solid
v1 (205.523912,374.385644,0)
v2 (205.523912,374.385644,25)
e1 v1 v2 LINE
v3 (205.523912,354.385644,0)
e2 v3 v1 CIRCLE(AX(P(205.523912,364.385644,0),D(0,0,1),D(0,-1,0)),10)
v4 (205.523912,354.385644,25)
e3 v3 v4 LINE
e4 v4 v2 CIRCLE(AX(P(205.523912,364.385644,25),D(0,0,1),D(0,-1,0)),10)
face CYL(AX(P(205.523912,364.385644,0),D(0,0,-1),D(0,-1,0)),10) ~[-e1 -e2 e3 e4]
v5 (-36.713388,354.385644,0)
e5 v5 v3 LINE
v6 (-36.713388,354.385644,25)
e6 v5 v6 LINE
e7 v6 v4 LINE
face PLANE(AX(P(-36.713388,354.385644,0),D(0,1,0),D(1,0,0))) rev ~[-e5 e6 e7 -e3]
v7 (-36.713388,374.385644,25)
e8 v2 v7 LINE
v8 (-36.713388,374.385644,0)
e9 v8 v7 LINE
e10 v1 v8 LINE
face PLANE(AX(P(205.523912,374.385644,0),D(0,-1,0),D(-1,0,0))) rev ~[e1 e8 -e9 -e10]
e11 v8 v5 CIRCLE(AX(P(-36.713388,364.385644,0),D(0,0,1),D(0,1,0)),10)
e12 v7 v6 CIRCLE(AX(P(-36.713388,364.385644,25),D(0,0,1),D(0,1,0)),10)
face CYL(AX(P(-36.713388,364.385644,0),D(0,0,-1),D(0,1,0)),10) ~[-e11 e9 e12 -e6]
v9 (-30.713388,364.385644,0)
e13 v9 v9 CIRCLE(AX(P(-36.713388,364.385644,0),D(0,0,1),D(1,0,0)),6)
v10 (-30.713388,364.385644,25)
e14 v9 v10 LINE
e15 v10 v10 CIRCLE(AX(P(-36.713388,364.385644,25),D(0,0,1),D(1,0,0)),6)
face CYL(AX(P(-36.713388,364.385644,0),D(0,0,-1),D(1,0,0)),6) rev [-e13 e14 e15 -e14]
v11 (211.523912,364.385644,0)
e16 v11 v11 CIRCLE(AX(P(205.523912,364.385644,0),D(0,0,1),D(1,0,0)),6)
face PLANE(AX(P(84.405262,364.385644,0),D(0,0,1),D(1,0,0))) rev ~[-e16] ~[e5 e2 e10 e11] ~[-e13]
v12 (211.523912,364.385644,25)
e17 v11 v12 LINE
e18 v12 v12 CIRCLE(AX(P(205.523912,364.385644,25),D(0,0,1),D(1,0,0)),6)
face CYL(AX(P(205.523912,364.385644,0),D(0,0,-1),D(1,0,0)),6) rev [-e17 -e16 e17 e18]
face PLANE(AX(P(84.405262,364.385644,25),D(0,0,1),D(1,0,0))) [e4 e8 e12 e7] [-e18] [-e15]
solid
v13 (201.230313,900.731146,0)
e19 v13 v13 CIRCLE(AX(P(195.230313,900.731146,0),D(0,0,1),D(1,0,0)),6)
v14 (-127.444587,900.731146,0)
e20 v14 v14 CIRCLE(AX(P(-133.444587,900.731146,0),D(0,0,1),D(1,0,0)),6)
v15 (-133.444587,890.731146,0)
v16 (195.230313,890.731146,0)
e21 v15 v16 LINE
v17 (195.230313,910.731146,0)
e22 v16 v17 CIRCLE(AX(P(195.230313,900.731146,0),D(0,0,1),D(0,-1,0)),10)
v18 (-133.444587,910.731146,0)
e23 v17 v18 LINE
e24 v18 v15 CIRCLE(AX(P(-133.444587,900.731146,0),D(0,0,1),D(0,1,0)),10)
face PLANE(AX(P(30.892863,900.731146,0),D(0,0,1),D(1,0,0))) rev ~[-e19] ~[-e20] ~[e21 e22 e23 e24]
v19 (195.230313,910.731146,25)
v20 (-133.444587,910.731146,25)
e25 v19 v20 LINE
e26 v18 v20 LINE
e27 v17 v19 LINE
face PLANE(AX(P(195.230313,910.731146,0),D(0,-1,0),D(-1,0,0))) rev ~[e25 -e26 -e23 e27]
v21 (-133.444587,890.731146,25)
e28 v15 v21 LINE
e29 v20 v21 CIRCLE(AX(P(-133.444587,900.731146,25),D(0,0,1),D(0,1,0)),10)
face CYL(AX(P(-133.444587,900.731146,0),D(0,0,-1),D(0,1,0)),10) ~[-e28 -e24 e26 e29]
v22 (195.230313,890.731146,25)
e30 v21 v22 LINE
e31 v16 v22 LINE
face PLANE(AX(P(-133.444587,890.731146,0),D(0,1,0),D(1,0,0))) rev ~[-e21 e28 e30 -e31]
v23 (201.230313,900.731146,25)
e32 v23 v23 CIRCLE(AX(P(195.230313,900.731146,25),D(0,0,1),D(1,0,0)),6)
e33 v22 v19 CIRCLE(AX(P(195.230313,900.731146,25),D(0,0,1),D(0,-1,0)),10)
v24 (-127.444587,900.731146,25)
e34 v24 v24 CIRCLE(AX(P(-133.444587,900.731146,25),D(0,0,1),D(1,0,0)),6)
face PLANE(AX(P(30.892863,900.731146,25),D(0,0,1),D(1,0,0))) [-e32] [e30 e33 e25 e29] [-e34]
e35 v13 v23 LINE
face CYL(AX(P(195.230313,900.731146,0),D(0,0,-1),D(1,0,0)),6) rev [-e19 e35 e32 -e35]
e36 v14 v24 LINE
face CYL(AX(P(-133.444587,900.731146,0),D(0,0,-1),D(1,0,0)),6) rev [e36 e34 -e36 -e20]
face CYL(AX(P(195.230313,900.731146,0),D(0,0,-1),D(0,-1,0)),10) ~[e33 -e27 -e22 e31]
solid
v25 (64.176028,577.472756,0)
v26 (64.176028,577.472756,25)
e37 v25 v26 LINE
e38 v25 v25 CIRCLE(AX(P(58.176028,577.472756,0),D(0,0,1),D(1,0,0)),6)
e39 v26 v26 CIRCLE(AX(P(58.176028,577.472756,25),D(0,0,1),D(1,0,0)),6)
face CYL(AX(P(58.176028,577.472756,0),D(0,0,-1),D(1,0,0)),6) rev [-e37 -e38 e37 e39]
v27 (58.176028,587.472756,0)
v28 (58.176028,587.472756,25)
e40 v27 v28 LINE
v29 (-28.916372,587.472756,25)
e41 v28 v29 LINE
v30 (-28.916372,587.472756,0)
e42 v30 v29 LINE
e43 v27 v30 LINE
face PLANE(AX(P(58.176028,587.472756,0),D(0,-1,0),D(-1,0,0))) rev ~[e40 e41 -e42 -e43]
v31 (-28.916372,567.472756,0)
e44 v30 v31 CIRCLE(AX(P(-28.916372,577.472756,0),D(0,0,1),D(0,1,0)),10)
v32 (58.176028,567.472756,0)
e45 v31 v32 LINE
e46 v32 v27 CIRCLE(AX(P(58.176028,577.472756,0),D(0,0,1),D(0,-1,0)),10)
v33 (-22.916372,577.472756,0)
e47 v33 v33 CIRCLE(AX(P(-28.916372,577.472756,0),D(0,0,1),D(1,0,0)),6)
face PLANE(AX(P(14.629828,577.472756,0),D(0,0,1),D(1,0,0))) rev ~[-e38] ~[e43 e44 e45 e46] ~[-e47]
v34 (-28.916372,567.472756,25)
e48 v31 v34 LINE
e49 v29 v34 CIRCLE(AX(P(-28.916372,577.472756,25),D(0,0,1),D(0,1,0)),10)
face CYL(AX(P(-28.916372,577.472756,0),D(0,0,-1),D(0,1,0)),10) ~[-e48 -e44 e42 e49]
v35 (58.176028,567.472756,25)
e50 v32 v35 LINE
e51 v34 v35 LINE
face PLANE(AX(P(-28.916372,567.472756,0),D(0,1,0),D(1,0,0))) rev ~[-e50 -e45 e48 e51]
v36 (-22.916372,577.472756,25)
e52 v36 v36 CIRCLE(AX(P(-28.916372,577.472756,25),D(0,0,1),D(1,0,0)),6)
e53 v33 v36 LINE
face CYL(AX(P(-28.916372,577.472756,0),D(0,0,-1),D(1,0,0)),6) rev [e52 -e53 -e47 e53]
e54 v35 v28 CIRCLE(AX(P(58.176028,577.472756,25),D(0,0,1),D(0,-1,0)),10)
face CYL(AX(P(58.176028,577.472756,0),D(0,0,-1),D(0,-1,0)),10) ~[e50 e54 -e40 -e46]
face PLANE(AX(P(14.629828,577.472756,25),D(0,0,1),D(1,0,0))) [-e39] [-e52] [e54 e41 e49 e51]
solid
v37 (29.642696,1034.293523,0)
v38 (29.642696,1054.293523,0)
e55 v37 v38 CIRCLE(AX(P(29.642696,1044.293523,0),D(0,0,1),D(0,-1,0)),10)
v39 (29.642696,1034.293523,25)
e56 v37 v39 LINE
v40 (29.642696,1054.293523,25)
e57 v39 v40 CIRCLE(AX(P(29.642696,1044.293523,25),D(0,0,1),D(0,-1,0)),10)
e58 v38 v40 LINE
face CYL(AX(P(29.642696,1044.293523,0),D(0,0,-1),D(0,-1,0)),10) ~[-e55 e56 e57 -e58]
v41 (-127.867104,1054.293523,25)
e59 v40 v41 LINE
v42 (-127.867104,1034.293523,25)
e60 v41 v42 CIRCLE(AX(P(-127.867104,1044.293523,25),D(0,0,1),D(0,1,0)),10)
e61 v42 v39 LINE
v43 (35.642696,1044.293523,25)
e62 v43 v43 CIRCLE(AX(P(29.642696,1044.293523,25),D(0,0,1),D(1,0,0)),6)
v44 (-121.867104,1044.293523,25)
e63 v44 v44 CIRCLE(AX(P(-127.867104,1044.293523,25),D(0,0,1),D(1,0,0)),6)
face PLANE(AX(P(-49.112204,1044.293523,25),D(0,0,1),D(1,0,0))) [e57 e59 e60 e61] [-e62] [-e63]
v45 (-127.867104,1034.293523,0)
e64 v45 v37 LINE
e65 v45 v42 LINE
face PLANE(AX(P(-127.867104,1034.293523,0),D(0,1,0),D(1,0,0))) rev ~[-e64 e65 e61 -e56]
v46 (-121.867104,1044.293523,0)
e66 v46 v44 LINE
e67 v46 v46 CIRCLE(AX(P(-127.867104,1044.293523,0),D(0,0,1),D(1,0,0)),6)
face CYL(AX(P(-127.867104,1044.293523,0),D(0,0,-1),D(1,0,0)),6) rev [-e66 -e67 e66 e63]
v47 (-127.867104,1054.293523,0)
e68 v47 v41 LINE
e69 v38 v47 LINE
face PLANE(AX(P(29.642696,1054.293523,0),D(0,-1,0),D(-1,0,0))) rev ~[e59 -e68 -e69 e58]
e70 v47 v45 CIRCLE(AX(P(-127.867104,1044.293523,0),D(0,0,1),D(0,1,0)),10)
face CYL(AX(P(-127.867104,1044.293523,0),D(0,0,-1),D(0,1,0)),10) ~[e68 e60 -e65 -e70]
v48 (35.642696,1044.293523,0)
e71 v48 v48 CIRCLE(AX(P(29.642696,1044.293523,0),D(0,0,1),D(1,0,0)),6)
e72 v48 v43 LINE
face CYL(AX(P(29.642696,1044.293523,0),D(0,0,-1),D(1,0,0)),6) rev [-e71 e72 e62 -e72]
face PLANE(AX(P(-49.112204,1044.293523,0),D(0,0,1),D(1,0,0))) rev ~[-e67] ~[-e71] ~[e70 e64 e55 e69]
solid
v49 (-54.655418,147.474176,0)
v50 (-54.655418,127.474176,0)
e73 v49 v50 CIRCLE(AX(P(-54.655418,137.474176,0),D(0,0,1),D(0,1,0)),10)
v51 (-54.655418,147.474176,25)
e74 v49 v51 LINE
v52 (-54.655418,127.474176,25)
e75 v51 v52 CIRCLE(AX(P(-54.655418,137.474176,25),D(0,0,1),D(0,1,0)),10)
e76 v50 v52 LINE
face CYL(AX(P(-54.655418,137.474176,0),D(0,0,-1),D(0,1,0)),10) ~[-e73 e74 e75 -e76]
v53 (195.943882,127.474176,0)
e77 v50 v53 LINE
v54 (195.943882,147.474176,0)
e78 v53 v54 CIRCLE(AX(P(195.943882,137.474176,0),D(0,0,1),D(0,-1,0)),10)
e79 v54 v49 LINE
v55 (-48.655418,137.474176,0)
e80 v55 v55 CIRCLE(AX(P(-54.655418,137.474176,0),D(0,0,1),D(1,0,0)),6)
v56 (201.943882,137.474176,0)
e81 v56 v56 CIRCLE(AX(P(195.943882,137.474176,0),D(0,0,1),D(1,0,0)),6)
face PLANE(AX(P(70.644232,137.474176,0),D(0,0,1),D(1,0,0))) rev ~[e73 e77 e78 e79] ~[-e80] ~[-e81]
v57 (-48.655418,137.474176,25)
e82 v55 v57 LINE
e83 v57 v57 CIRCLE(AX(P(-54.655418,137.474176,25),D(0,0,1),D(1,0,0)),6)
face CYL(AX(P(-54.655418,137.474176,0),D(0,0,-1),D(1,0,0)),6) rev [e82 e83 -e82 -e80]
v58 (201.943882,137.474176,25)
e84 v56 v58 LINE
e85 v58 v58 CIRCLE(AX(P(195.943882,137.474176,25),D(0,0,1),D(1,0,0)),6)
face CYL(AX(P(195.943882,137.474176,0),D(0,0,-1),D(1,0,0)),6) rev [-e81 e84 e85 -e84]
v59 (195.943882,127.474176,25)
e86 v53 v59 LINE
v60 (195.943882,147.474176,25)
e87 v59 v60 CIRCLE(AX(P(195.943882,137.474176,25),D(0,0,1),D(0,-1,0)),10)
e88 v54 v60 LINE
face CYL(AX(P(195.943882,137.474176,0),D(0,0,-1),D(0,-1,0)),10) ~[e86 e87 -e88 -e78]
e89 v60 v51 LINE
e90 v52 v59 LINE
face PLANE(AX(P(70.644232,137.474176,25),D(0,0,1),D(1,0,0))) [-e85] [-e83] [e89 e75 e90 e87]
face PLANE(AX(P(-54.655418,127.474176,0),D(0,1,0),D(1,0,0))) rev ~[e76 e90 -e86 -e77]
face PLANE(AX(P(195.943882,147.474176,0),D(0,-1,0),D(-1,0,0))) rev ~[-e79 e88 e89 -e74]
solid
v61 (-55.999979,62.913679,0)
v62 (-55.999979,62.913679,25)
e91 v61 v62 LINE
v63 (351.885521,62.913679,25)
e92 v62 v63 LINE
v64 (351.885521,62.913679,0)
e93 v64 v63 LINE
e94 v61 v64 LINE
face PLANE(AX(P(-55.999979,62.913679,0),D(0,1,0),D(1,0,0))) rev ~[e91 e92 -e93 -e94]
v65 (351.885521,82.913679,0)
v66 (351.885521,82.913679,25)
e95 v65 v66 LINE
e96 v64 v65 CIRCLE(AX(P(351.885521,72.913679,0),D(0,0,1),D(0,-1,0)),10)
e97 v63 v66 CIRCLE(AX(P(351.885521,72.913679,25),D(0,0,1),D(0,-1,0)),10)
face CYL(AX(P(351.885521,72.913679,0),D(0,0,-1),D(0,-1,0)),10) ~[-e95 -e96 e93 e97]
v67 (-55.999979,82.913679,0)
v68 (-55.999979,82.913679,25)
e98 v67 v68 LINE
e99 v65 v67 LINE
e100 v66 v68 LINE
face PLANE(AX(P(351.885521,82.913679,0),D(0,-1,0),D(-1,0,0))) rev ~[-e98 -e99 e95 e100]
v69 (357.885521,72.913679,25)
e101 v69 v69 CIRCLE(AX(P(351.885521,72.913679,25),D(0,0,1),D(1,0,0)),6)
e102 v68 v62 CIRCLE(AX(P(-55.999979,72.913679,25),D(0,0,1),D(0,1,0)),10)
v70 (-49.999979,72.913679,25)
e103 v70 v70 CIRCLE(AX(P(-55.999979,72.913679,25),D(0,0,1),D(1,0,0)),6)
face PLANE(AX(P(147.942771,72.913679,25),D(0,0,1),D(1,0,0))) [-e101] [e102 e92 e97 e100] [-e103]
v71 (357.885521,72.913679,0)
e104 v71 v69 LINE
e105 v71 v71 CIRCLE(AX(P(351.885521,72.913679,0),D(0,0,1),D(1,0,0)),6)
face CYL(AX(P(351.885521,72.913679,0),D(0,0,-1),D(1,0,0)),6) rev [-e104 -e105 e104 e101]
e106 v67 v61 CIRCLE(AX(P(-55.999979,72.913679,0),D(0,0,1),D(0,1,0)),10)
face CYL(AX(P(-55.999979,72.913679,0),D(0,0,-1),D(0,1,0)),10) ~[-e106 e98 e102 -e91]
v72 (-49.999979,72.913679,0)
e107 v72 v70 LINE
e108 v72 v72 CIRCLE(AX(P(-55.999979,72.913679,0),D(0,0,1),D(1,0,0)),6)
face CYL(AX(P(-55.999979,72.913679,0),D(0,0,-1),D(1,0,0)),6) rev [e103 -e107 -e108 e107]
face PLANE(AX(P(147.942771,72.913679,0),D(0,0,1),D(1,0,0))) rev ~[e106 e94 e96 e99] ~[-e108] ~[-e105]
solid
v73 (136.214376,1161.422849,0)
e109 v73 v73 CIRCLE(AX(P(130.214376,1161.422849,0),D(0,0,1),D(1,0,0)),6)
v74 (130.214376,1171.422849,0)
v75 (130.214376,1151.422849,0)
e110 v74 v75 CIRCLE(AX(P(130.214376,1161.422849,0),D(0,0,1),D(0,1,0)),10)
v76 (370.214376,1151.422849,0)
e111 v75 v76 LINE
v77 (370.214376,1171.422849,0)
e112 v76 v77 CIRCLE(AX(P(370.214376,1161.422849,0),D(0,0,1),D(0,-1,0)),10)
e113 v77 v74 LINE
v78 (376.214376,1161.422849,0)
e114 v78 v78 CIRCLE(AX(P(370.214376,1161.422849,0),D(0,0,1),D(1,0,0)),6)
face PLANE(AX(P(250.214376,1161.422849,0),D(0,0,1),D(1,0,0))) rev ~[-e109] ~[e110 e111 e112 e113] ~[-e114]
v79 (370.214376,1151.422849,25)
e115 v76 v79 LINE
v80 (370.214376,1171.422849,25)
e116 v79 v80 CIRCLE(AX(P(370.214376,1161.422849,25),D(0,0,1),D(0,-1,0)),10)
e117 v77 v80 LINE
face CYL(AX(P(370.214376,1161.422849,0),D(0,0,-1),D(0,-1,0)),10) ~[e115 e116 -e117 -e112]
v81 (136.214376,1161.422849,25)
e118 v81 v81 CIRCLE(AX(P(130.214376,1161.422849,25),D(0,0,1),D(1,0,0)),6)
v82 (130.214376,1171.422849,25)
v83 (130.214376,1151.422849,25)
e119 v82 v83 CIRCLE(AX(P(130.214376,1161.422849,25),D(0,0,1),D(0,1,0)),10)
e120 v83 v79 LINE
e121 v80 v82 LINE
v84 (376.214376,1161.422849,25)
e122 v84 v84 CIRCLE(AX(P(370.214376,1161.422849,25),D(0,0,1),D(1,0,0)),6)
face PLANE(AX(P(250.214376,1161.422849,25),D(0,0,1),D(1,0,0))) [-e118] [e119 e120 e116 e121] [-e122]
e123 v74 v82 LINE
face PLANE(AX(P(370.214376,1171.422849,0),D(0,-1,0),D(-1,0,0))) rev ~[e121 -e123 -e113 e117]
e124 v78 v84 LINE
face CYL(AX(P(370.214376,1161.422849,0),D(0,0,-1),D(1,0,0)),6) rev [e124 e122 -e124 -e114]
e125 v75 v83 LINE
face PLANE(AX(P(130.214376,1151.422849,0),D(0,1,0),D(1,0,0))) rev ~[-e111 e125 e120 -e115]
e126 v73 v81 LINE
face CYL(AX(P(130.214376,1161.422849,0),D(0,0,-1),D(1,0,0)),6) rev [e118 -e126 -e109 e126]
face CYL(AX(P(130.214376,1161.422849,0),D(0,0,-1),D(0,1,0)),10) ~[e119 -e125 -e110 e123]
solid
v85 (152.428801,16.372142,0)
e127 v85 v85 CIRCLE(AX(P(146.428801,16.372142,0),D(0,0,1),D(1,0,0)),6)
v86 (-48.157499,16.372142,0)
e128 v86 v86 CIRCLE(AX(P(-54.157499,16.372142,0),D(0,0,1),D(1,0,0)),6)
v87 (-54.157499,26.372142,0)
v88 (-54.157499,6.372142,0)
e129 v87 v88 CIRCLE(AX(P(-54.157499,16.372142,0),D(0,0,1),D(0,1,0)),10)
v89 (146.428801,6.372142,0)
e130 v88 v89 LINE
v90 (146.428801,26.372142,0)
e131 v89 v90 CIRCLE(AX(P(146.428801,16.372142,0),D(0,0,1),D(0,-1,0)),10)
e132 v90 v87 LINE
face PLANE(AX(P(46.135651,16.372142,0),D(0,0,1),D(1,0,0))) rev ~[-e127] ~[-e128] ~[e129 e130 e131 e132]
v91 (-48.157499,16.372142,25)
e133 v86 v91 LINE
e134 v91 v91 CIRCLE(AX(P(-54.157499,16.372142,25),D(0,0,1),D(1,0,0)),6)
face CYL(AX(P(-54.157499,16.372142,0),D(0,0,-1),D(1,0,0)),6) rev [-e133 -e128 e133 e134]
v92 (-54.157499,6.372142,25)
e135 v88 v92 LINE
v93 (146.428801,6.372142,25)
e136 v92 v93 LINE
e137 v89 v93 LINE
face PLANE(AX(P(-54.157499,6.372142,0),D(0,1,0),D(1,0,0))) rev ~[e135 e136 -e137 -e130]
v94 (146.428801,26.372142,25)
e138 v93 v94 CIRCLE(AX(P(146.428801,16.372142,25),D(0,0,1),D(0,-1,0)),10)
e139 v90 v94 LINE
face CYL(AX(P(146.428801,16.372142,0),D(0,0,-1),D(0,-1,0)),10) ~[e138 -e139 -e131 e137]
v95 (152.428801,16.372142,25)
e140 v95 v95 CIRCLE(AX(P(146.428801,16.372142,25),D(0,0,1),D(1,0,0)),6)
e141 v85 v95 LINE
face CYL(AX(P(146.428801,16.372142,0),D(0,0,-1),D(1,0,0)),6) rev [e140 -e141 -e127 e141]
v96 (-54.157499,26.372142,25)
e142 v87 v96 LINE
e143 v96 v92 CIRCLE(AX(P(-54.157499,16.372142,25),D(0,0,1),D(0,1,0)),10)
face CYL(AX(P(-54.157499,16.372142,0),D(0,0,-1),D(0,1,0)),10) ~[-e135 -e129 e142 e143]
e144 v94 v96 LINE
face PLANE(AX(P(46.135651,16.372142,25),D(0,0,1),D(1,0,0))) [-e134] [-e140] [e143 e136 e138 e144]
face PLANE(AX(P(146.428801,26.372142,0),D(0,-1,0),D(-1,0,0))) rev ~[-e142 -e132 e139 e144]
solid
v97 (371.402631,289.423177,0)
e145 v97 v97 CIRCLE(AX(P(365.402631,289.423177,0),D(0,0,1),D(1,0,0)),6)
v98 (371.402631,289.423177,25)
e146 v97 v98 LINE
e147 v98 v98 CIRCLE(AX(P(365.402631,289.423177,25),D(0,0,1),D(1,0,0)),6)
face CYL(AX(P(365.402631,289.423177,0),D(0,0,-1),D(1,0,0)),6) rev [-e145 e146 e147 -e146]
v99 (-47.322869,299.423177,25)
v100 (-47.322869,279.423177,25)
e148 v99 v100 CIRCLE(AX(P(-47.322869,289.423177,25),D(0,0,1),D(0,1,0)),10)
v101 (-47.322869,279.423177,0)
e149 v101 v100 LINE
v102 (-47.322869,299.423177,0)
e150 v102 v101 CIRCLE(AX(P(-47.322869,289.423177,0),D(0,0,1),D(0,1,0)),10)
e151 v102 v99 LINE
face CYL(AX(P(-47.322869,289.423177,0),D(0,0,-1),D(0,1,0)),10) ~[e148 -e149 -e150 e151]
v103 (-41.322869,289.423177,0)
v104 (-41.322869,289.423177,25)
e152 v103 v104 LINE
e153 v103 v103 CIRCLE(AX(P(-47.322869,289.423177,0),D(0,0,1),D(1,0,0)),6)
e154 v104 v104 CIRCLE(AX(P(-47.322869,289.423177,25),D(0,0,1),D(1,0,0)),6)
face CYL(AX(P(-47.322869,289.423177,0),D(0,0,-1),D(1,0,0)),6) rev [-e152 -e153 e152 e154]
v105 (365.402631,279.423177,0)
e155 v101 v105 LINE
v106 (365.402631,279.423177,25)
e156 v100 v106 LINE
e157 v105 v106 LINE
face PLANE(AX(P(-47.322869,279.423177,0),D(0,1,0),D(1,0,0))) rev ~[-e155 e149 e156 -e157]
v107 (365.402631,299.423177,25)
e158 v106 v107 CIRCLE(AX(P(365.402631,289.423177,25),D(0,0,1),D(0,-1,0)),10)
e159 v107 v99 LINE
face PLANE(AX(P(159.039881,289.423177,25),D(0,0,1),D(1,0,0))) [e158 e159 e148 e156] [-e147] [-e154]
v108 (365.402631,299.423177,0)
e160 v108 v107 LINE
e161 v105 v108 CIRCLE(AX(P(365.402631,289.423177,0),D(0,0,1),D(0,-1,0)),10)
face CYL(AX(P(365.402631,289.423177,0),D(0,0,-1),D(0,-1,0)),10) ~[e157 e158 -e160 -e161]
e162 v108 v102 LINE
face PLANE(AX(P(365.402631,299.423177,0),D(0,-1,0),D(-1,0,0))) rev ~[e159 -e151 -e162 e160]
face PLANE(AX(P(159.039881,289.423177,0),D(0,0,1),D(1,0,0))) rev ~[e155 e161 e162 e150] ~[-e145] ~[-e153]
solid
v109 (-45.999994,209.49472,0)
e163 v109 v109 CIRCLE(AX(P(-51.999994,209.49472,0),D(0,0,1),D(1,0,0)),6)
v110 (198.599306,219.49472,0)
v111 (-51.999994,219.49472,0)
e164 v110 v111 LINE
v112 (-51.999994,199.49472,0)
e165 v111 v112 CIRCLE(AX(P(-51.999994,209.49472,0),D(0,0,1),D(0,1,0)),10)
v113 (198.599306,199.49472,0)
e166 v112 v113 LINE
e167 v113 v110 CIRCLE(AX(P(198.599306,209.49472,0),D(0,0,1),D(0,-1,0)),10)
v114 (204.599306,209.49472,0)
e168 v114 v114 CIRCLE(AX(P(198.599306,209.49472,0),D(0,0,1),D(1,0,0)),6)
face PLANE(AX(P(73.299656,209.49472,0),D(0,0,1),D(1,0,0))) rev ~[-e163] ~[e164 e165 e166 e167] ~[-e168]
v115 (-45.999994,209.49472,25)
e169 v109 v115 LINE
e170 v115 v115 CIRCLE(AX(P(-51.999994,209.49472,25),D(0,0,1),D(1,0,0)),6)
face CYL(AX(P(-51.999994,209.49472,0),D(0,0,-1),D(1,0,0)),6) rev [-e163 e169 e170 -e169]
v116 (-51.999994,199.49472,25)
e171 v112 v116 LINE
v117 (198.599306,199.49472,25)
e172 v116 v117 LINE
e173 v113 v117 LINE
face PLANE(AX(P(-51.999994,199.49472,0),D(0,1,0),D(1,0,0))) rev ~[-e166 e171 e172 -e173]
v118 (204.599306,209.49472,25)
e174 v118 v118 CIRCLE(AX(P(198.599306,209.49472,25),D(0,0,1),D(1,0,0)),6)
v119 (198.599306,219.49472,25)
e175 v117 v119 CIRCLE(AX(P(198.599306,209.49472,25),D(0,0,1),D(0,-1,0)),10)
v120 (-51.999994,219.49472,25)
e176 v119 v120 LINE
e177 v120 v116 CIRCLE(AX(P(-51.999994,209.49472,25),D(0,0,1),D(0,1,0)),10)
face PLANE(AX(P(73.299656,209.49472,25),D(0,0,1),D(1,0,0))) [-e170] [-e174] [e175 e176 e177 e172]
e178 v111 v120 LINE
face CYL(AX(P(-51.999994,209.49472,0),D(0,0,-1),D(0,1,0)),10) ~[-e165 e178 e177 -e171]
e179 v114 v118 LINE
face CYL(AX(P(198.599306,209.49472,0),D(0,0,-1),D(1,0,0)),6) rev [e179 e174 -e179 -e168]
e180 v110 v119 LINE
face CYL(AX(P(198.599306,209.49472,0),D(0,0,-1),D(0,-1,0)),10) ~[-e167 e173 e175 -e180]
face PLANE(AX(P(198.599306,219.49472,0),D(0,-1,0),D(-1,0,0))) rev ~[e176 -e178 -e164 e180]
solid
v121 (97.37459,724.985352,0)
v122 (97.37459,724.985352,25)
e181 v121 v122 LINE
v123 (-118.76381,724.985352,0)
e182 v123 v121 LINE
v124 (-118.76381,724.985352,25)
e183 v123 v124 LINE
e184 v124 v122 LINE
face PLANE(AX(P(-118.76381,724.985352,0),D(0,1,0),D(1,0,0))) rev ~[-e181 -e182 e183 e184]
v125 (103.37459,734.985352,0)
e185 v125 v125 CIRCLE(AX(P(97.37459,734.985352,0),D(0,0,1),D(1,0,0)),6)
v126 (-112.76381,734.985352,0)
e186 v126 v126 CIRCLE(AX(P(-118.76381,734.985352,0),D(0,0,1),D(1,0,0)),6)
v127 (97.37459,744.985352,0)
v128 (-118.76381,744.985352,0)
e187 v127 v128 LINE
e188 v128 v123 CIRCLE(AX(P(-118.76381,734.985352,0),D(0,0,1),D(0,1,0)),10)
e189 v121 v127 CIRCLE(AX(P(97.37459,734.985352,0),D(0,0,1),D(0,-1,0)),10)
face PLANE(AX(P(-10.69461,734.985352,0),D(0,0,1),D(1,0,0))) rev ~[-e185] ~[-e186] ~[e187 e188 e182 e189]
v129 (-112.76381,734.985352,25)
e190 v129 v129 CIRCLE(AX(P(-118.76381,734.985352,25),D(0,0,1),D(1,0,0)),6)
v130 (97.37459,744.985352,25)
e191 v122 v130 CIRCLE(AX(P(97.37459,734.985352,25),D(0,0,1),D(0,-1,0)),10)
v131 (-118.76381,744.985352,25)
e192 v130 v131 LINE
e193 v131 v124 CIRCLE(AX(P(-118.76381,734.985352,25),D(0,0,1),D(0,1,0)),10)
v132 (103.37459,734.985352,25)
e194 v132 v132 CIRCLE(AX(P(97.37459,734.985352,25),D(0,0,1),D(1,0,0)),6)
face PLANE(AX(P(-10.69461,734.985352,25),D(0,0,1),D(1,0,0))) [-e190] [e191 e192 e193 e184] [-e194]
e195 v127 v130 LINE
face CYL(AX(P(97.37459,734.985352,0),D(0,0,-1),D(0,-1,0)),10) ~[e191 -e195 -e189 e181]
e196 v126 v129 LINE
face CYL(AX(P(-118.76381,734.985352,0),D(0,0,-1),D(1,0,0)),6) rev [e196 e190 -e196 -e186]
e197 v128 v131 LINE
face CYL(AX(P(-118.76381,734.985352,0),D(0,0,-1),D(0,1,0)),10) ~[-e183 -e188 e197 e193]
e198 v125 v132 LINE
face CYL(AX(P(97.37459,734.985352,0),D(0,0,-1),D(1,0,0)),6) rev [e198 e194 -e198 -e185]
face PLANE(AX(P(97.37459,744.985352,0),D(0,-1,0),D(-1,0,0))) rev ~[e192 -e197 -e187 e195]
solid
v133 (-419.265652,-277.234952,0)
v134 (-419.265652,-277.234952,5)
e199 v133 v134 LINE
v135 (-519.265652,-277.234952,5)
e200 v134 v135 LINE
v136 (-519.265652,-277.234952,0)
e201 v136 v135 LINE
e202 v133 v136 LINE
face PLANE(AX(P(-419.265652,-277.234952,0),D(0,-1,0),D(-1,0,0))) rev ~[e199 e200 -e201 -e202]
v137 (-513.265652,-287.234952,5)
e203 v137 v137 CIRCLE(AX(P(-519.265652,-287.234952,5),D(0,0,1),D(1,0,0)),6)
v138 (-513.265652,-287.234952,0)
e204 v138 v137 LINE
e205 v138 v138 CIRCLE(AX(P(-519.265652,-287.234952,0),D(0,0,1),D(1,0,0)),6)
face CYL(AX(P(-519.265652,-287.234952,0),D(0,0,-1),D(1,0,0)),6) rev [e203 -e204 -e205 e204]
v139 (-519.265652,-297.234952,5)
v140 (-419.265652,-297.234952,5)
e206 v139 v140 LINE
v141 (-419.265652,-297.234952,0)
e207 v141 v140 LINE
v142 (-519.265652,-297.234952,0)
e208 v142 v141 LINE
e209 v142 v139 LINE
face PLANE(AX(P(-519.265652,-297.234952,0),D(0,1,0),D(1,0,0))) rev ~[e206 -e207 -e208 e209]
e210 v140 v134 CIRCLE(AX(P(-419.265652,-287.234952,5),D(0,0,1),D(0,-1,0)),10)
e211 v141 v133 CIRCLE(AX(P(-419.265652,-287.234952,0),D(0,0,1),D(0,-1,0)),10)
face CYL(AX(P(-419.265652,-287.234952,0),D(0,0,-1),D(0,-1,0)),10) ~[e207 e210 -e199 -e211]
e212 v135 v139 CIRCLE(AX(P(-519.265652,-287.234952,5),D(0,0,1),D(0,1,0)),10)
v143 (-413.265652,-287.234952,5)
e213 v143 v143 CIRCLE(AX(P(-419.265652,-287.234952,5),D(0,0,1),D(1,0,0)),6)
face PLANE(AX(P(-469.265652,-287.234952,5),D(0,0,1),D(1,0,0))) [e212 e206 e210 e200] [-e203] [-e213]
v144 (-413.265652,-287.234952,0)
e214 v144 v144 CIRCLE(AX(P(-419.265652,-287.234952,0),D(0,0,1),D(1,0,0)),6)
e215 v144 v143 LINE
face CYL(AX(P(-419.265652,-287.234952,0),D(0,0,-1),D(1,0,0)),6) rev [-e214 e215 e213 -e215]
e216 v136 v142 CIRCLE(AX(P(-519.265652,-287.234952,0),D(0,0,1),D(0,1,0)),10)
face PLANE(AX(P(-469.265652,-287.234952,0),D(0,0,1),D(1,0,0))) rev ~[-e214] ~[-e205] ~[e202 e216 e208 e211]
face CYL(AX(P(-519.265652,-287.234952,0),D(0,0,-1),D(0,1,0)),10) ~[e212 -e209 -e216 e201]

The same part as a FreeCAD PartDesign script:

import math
import FreeCAD as App
import Part
import Sketcher
Q = App.Units.Quantity

doc = App.newDocument("Part")
body = doc.addObject("PartDesign::Body", "Body")

# Sketch on XY plane
sketch1 = body.newObject("Sketcher::SketchObject", "Sketch")
sketch1.AttachmentSupport = (doc.getObject("XY_Plane"), [""])
sketch1.MapMode = "FlatFace"
sketch1.addGeometry([
    Part.ArcOfCircle(Part.Circle(App.Vector(-54, 16, 0), App.Vector(0, 0, 1), 10), math.radians(90), math.radians(270)),  # 0
    Part.LineSegment(App.Vector(-54, 6, 0), App.Vector(146, 6, 0)),  # 1
    Part.ArcOfCircle(Part.Circle(App.Vector(146, 16, 0), App.Vector(0, 0, 1), 10), math.radians(-90), math.radians(90)),  # 2
    Part.LineSegment(App.Vector(146, 26, 0), App.Vector(-54, 26, 0)),  # 3
    Part.Circle(App.Vector(-54, 16, 0), App.Vector(0, 0, 1), 6),  # 4
    Part.Circle(App.Vector(146, 16, 0), App.Vector(0, 0, 1), 6),  # 5
], False)
sketch1.addConstraint([
    Sketcher.Constraint("Tangent", 0, 2, 1, 1),
    Sketcher.Constraint("Tangent", 1, 2, 2, 1),
    Sketcher.Constraint("Tangent", 2, 2, 3, 1),
    Sketcher.Constraint("Tangent", 3, 2, 0, 1),
    Sketcher.Constraint("Horizontal", 1),
    Sketcher.Constraint("Horizontal", 3),
    Sketcher.Constraint("Coincident", 4, 3, 0, 3),
    Sketcher.Constraint("Coincident", 5, 3, 2, 3),
    Sketcher.Constraint("Equal", 4, 5),
    Sketcher.Constraint("Diameter", 4, Q("12 mm")),
    Sketcher.Constraint("Radius", 0, Q("10 mm")),
    Sketcher.Constraint("DistanceX", 1, 1, 1, 2, Q("200.5863 mm")),
    Sketcher.Constraint("DistanceX", 0, 3, -1, 1, Q("54.157499 mm")),
    Sketcher.Constraint("DistanceY", -1, 1, 0, 3, Q("16.372142 mm")),
])
pad1 = body.newObject("PartDesign::Pad", "Pad")
pad1.Profile = sketch1
pad1.Length = 25
body2 = doc.addObject("PartDesign::Body", "Body001")

# Sketch on XY plane
sketch2 = body2.newObject("Sketcher::SketchObject", "Sketch001")
sketch2.AttachmentSupport = (doc.getObject("XY_Plane001"), [""])
sketch2.MapMode = "FlatFace"
sketch2.addGeometry([
    Part.ArcOfCircle(Part.Circle(App.Vector(-56, 73, 0), App.Vector(0, 0, 1), 10), math.radians(90), math.radians(270)),  # 0
    Part.LineSegment(App.Vector(-56, 63, 0), App.Vector(352, 63, 0)),  # 1
    Part.ArcOfCircle(Part.Circle(App.Vector(352, 73, 0), App.Vector(0, 0, 1), 10), math.radians(-90), math.radians(90)),  # 2
    Part.LineSegment(App.Vector(352, 83, 0), App.Vector(-56, 83, 0)),  # 3
    Part.Circle(App.Vector(-56, 73, 0), App.Vector(0, 0, 1), 6),  # 4
    Part.Circle(App.Vector(352, 73, 0), App.Vector(0, 0, 1), 6),  # 5
], False)
sketch2.addConstraint([
    Sketcher.Constraint("Tangent", 0, 2, 1, 1),
    Sketcher.Constraint("Tangent", 1, 2, 2, 1),
    Sketcher.Constraint("Tangent", 2, 2, 3, 1),
    Sketcher.Constraint("Tangent", 3, 2, 0, 1),
    Sketcher.Constraint("Horizontal", 1),
    Sketcher.Constraint("Horizontal", 3),
    Sketcher.Constraint("Coincident", 4, 3, 0, 3),
    Sketcher.Constraint("Coincident", 5, 3, 2, 3),
    Sketcher.Constraint("Equal", 4, 5),
    Sketcher.Constraint("Diameter", 4, Q("12 mm")),
    Sketcher.Constraint("Radius", 0, Q("10 mm")),
    Sketcher.Constraint("DistanceX", 1, 1, 1, 2, Q("407.8855 mm")),
    Sketcher.Constraint("DistanceX", 0, 3, -1, 1, Q("55.999979 mm")),
    Sketcher.Constraint("DistanceY", -1, 1, 0, 3, Q("72.913679 mm")),
])
pad2 = body2.newObject("PartDesign::Pad", "Pad001")
pad2.Profile = sketch2
pad2.Length = 25
body3 = doc.addObject("PartDesign::Body", "Body002")

# Sketch on XY plane
sketch3 = body3.newObject("Sketcher::SketchObject", "Sketch002")
sketch3.AttachmentSupport = (doc.getObject("XY_Plane002"), [""])
sketch3.MapMode = "FlatFace"
sketch3.addGeometry([
    Part.ArcOfCircle(Part.Circle(App.Vector(-55, 137, 0), App.Vector(0, 0, 1), 10), math.radians(90), math.radians(270)),  # 0
    Part.LineSegment(App.Vector(-55, 127, 0), App.Vector(196, 127, 0)),  # 1
    Part.ArcOfCircle(Part.Circle(App.Vector(196, 137, 0), App.Vector(0, 0, 1), 10), math.radians(-90), math.radians(90)),  # 2
    Part.LineSegment(App.Vector(196, 147, 0), App.Vector(-55, 147, 0)),  # 3
    Part.Circle(App.Vector(-55, 137, 0), App.Vector(0, 0, 1), 6),  # 4
    Part.Circle(App.Vector(196, 137, 0), App.Vector(0, 0, 1), 6),  # 5
], False)
sketch3.addConstraint([
    Sketcher.Constraint("Tangent", 0, 2, 1, 1),
    Sketcher.Constraint("Tangent", 1, 2, 2, 1),
    Sketcher.Constraint("Tangent", 2, 2, 3, 1),
    Sketcher.Constraint("Tangent", 3, 2, 0, 1),
    Sketcher.Constraint("Horizontal", 1),
    Sketcher.Constraint("Horizontal", 3),
    Sketcher.Constraint("Coincident", 4, 3, 0, 3),
    Sketcher.Constraint("Coincident", 5, 3, 2, 3),
    Sketcher.Constraint("Equal", 4, 5),
    Sketcher.Constraint("Diameter", 4, Q("12 mm")),
    Sketcher.Constraint("Radius", 0, Q("10 mm")),
    Sketcher.Constraint("DistanceX", 1, 1, 1, 2, Q("250.5993 mm")),
    Sketcher.Constraint("DistanceX", -1, 1, 2, 3, Q("195.943882 mm")),
    Sketcher.Constraint("DistanceY", -1, 1, 0, 3, Q("137.474176 mm")),
])
pad3 = body3.newObject("PartDesign::Pad", "Pad002")
pad3.Profile = sketch3
pad3.Length = 25
body4 = doc.addObject("PartDesign::Body", "Body003")

# Sketch on XY plane
sketch4 = body4.newObject("Sketcher::SketchObject", "Sketch003")
sketch4.AttachmentSupport = (doc.getObject("XY_Plane003"), [""])
sketch4.MapMode = "FlatFace"
sketch4.addGeometry([
    Part.ArcOfCircle(Part.Circle(App.Vector(-52, 209, 0), App.Vector(0, 0, 1), 10), math.radians(90), math.radians(270)),  # 0
    Part.LineSegment(App.Vector(-52, 199, 0), App.Vector(199, 199, 0)),  # 1
    Part.ArcOfCircle(Part.Circle(App.Vector(199, 209, 0), App.Vector(0, 0, 1), 10), math.radians(-90), math.radians(90)),  # 2
    Part.LineSegment(App.Vector(199, 219, 0), App.Vector(-52, 219, 0)),  # 3
    Part.Circle(App.Vector(-52, 209, 0), App.Vector(0, 0, 1), 6),  # 4
    Part.Circle(App.Vector(199, 209, 0), App.Vector(0, 0, 1), 6),  # 5
], False)
sketch4.addConstraint([
    Sketcher.Constraint("Tangent", 0, 2, 1, 1),
    Sketcher.Constraint("Tangent", 1, 2, 2, 1),
    Sketcher.Constraint("Tangent", 2, 2, 3, 1),
    Sketcher.Constraint("Tangent", 3, 2, 0, 1),
    Sketcher.Constraint("Horizontal", 1),
    Sketcher.Constraint("Horizontal", 3),
    Sketcher.Constraint("Coincident", 4, 3, 0, 3),
    Sketcher.Constraint("Coincident", 5, 3, 2, 3),
    Sketcher.Constraint("Equal", 4, 5),
    Sketcher.Constraint("Diameter", 4, Q("12 mm")),
    Sketcher.Constraint("Radius", 0, Q("10 mm")),
    Sketcher.Constraint("DistanceX", 1, 1, 1, 2, Q("250.5993 mm")),
    Sketcher.Constraint("DistanceY", -1, 1, 0, 3, Q("209.49472 mm")),
    Sketcher.Constraint("DistanceX", 0, 3, -1, 1, Q("51.999994 mm")),
])
pad4 = body4.newObject("PartDesign::Pad", "Pad003")
pad4.Profile = sketch4
pad4.Length = 25
body5 = doc.addObject("PartDesign::Body", "Body004")

# Sketch on XY plane
sketch5 = body5.newObject("Sketcher::SketchObject", "Sketch004")
sketch5.AttachmentSupport = (doc.getObject("XY_Plane004"), [""])
sketch5.MapMode = "FlatFace"
sketch5.addGeometry([
    Part.ArcOfCircle(Part.Circle(App.Vector(-47, 289, 0), App.Vector(0, 0, 1), 10), math.radians(90), math.radians(270)),  # 0
    Part.LineSegment(App.Vector(-47, 279, 0), App.Vector(365, 279, 0)),  # 1
    Part.ArcOfCircle(Part.Circle(App.Vector(365, 289, 0), App.Vector(0, 0, 1), 10), math.radians(-90), math.radians(90)),  # 2
    Part.LineSegment(App.Vector(365, 299, 0), App.Vector(-47, 299, 0)),  # 3
    Part.Circle(App.Vector(-47, 289, 0), App.Vector(0, 0, 1), 6),  # 4
    Part.Circle(App.Vector(365, 289, 0), App.Vector(0, 0, 1), 6),  # 5
], False)
sketch5.addConstraint([
    Sketcher.Constraint("Tangent", 0, 2, 1, 1),
    Sketcher.Constraint("Tangent", 1, 2, 2, 1),
    Sketcher.Constraint("Tangent", 2, 2, 3, 1),
    Sketcher.Constraint("Tangent", 3, 2, 0, 1),
    Sketcher.Constraint("Horizontal", 1),
    Sketcher.Constraint("Horizontal", 3),
    Sketcher.Constraint("Coincident", 4, 3, 0, 3),
    Sketcher.Constraint("Coincident", 5, 3, 2, 3),
    Sketcher.Constraint("Equal", 4, 5),
    Sketcher.Constraint("Diameter", 4, Q("12 mm")),
    Sketcher.Constraint("Radius", 0, Q("10 mm")),
    Sketcher.Constraint("DistanceX", 1, 1, 1, 2, Q("412.7255 mm")),
    Sketcher.Constraint("DistanceX", 0, 3, -1, 1, Q("47.322869 mm")),
    Sketcher.Constraint("DistanceY", -1, 1, 0, 3, Q("289.423177 mm")),
])
pad5 = body5.newObject("PartDesign::Pad", "Pad004")
pad5.Profile = sketch5
pad5.Length = 25
body6 = doc.addObject("PartDesign::Body", "Body005")

# Sketch on XY plane
sketch6 = body6.newObject("Sketcher::SketchObject", "Sketch005")
sketch6.AttachmentSupport = (doc.getObject("XY_Plane005"), [""])
sketch6.MapMode = "FlatFace"
sketch6.addGeometry([
    Part.ArcOfCircle(Part.Circle(App.Vector(-37, 364, 0), App.Vector(0, 0, 1), 10), math.radians(90), math.radians(270)),  # 0
    Part.LineSegment(App.Vector(-37, 354, 0), App.Vector(206, 354, 0)),  # 1
    Part.ArcOfCircle(Part.Circle(App.Vector(206, 364, 0), App.Vector(0, 0, 1), 10), math.radians(-90), math.radians(90)),  # 2
    Part.LineSegment(App.Vector(206, 374, 0), App.Vector(-37, 374, 0)),  # 3
    Part.Circle(App.Vector(-37, 364, 0), App.Vector(0, 0, 1), 6),  # 4
    Part.Circle(App.Vector(206, 364, 0), App.Vector(0, 0, 1), 6),  # 5
], False)
sketch6.addConstraint([
    Sketcher.Constraint("Tangent", 0, 2, 1, 1),
    Sketcher.Constraint("Tangent", 1, 2, 2, 1),
    Sketcher.Constraint("Tangent", 2, 2, 3, 1),
    Sketcher.Constraint("Tangent", 3, 2, 0, 1),
    Sketcher.Constraint("Horizontal", 1),
    Sketcher.Constraint("Horizontal", 3),
    Sketcher.Constraint("Coincident", 4, 3, 0, 3),
    Sketcher.Constraint("Coincident", 5, 3, 2, 3),
    Sketcher.Constraint("Equal", 4, 5),
    Sketcher.Constraint("Diameter", 4, Q("12 mm")),
    Sketcher.Constraint("Radius", 0, Q("10 mm")),
    Sketcher.Constraint("DistanceX", 1, 1, 1, 2, Q("242.2373 mm")),
    Sketcher.Constraint("DistanceX", 0, 3, -1, 1, Q("36.713388 mm")),
    Sketcher.Constraint("DistanceY", -1, 1, 0, 3, Q("364.385644 mm")),
])
pad6 = body6.newObject("PartDesign::Pad", "Pad005")
pad6.Profile = sketch6
pad6.Length = 25
body7 = doc.addObject("PartDesign::Body", "Body006")

# Sketch on XY plane
sketch7 = body7.newObject("Sketcher::SketchObject", "Sketch006")
sketch7.AttachmentSupport = (doc.getObject("XY_Plane006"), [""])
sketch7.MapMode = "FlatFace"
sketch7.addGeometry([
    Part.ArcOfCircle(Part.Circle(App.Vector(-519, -287, 0), App.Vector(0, 0, 1), 10), math.radians(90), math.radians(270)),  # 0
    Part.LineSegment(App.Vector(-519, -297, 0), App.Vector(-419, -297, 0)),  # 1
    Part.ArcOfCircle(Part.Circle(App.Vector(-419, -287, 0), App.Vector(0, 0, 1), 10), math.radians(-90), math.radians(90)),  # 2
    Part.LineSegment(App.Vector(-419, -277, 0), App.Vector(-519, -277, 0)),  # 3
    Part.Circle(App.Vector(-519, -287, 0), App.Vector(0, 0, 1), 6),  # 4
    Part.Circle(App.Vector(-419, -287, 0), App.Vector(0, 0, 1), 6),  # 5
], False)
sketch7.addConstraint([
    Sketcher.Constraint("Tangent", 0, 2, 1, 1),
    Sketcher.Constraint("Tangent", 1, 2, 2, 1),
    Sketcher.Constraint("Tangent", 2, 2, 3, 1),
    Sketcher.Constraint("Tangent", 3, 2, 0, 1),
    Sketcher.Constraint("Horizontal", 1),
    Sketcher.Constraint("Horizontal", 3),
    Sketcher.Constraint("Coincident", 4, 3, 0, 3),
    Sketcher.Constraint("Coincident", 5, 3, 2, 3),
    Sketcher.Constraint("Equal", 4, 5),
    Sketcher.Constraint("Diameter", 4, Q("12 mm")),
    Sketcher.Constraint("Radius", 0, Q("10 mm")),
    Sketcher.Constraint("DistanceX", 1, 1, 1, 2, Q("100 mm")),
    Sketcher.Constraint("DistanceX", 0, 3, -1, 1, Q("519.265652 mm")),
    Sketcher.Constraint("DistanceY", 0, 3, -1, 1, Q("287.234952 mm")),
])
pad7 = body7.newObject("PartDesign::Pad", "Pad006")
pad7.Profile = sketch7
pad7.Length = 5
body8 = doc.addObject("PartDesign::Body", "Body007")

# Sketch on XY plane
sketch8 = body8.newObject("Sketcher::SketchObject", "Sketch007")
sketch8.AttachmentSupport = (doc.getObject("XY_Plane007"), [""])
sketch8.MapMode = "FlatFace"
sketch8.addGeometry([
    Part.ArcOfCircle(Part.Circle(App.Vector(-29, 577, 0), App.Vector(0, 0, 1), 10), math.radians(90), math.radians(270)),  # 0
    Part.LineSegment(App.Vector(-29, 567, 0), App.Vector(58, 567, 0)),  # 1
    Part.ArcOfCircle(Part.Circle(App.Vector(58, 577, 0), App.Vector(0, 0, 1), 10), math.radians(-90), math.radians(90)),  # 2
    Part.LineSegment(App.Vector(58, 587, 0), App.Vector(-29, 587, 0)),  # 3
    Part.Circle(App.Vector(-29, 577, 0), App.Vector(0, 0, 1), 6),  # 4
    Part.Circle(App.Vector(58, 577, 0), App.Vector(0, 0, 1), 6),  # 5
], False)
sketch8.addConstraint([
    Sketcher.Constraint("Tangent", 0, 2, 1, 1),
    Sketcher.Constraint("Tangent", 1, 2, 2, 1),
    Sketcher.Constraint("Tangent", 2, 2, 3, 1),
    Sketcher.Constraint("Tangent", 3, 2, 0, 1),
    Sketcher.Constraint("Horizontal", 1),
    Sketcher.Constraint("Horizontal", 3),
    Sketcher.Constraint("Coincident", 4, 3, 0, 3),
    Sketcher.Constraint("Coincident", 5, 3, 2, 3),
    Sketcher.Constraint("Equal", 4, 5),
    Sketcher.Constraint("Diameter", 4, Q("12 mm")),
    Sketcher.Constraint("Radius", 0, Q("10 mm")),
    Sketcher.Constraint("DistanceX", 1, 1, 1, 2, Q("87.0924 mm")),
    Sketcher.Constraint("DistanceX", 0, 3, -1, 1, Q("28.916372 mm")),
    Sketcher.Constraint("DistanceY", -1, 1, 0, 3, Q("577.472756 mm")),
])
pad8 = body8.newObject("PartDesign::Pad", "Pad007")
pad8.Profile = sketch8
pad8.Length = 25
body9 = doc.addObject("PartDesign::Body", "Body008")

# Sketch on XY plane
sketch9 = body9.newObject("Sketcher::SketchObject", "Sketch008")
sketch9.AttachmentSupport = (doc.getObject("XY_Plane008"), [""])
sketch9.MapMode = "FlatFace"
sketch9.addGeometry([
    Part.ArcOfCircle(Part.Circle(App.Vector(-119, 735, 0), App.Vector(0, 0, 1), 10), math.radians(90), math.radians(270)),  # 0
    Part.LineSegment(App.Vector(-119, 725, 0), App.Vector(97, 725, 0)),  # 1
    Part.ArcOfCircle(Part.Circle(App.Vector(97, 735, 0), App.Vector(0, 0, 1), 10), math.radians(-90), math.radians(90)),  # 2
    Part.LineSegment(App.Vector(97, 745, 0), App.Vector(-119, 745, 0)),  # 3
    Part.Circle(App.Vector(-119, 735, 0), App.Vector(0, 0, 1), 6),  # 4
    Part.Circle(App.Vector(97, 735, 0), App.Vector(0, 0, 1), 6),  # 5
], False)
sketch9.addConstraint([
    Sketcher.Constraint("Tangent", 0, 2, 1, 1),
    Sketcher.Constraint("Tangent", 1, 2, 2, 1),
    Sketcher.Constraint("Tangent", 2, 2, 3, 1),
    Sketcher.Constraint("Tangent", 3, 2, 0, 1),
    Sketcher.Constraint("Horizontal", 1),
    Sketcher.Constraint("Horizontal", 3),
    Sketcher.Constraint("Coincident", 4, 3, 0, 3),
    Sketcher.Constraint("Coincident", 5, 3, 2, 3),
    Sketcher.Constraint("Equal", 4, 5),
    Sketcher.Constraint("Diameter", 4, Q("12 mm")),
    Sketcher.Constraint("Radius", 0, Q("10 mm")),
    Sketcher.Constraint("DistanceX", 1, 1, 1, 2, Q("216.1384 mm")),
    Sketcher.Constraint("DistanceX", 0, 3, -1, 1, Q("118.76381 mm")),
    Sketcher.Constraint("DistanceY", -1, 1, 0, 3, Q("734.985352 mm")),
])
pad9 = body9.newObject("PartDesign::Pad", "Pad008")
pad9.Profile = sketch9
pad9.Length = 25
body10 = doc.addObject("PartDesign::Body", "Body009")

# Sketch on XY plane
sketch10 = body10.newObject("Sketcher::SketchObject", "Sketch009")
sketch10.AttachmentSupport = (doc.getObject("XY_Plane009"), [""])
sketch10.MapMode = "FlatFace"
sketch10.addGeometry([
    Part.ArcOfCircle(Part.Circle(App.Vector(-133, 901, 0), App.Vector(0, 0, 1), 10), math.radians(90), math.radians(270)),  # 0
    Part.LineSegment(App.Vector(-133, 891, 0), App.Vector(195, 891, 0)),  # 1
    Part.ArcOfCircle(Part.Circle(App.Vector(195, 901, 0), App.Vector(0, 0, 1), 10), math.radians(-90), math.radians(90)),  # 2
    Part.LineSegment(App.Vector(195, 911, 0), App.Vector(-133, 911, 0)),  # 3
    Part.Circle(App.Vector(-133, 901, 0), App.Vector(0, 0, 1), 6),  # 4
    Part.Circle(App.Vector(195, 901, 0), App.Vector(0, 0, 1), 6),  # 5
], False)
sketch10.addConstraint([
    Sketcher.Constraint("Tangent", 0, 2, 1, 1),
    Sketcher.Constraint("Tangent", 1, 2, 2, 1),
    Sketcher.Constraint("Tangent", 2, 2, 3, 1),
    Sketcher.Constraint("Tangent", 3, 2, 0, 1),
    Sketcher.Constraint("Horizontal", 1),
    Sketcher.Constraint("Horizontal", 3),
    Sketcher.Constraint("Coincident", 4, 3, 0, 3),
    Sketcher.Constraint("Coincident", 5, 3, 2, 3),
    Sketcher.Constraint("Equal", 4, 5),
    Sketcher.Constraint("Diameter", 4, Q("12 mm")),
    Sketcher.Constraint("Radius", 0, Q("10 mm")),
    Sketcher.Constraint("DistanceX", 1, 1, 1, 2, Q("328.6749 mm")),
    Sketcher.Constraint("DistanceX", 0, 3, -1, 1, Q("133.444587 mm")),
    Sketcher.Constraint("DistanceY", -1, 1, 0, 3, Q("900.731146 mm")),
])
pad10 = body10.newObject("PartDesign::Pad", "Pad009")
pad10.Profile = sketch10
pad10.Length = 25
body11 = doc.addObject("PartDesign::Body", "Body010")

# Sketch on XY plane
sketch11 = body11.newObject("Sketcher::SketchObject", "Sketch010")
sketch11.AttachmentSupport = (doc.getObject("XY_Plane010"), [""])
sketch11.MapMode = "FlatFace"
sketch11.addGeometry([
    Part.ArcOfCircle(Part.Circle(App.Vector(-128, 1044, 0), App.Vector(0, 0, 1), 10), math.radians(90), math.radians(270)),  # 0
    Part.LineSegment(App.Vector(-128, 1034, 0), App.Vector(30, 1034, 0)),  # 1
    Part.ArcOfCircle(Part.Circle(App.Vector(30, 1044, 0), App.Vector(0, 0, 1), 10), math.radians(-90), math.radians(90)),  # 2
    Part.LineSegment(App.Vector(30, 1054, 0), App.Vector(-128, 1054, 0)),  # 3
    Part.Circle(App.Vector(-128, 1044, 0), App.Vector(0, 0, 1), 6),  # 4
    Part.Circle(App.Vector(30, 1044, 0), App.Vector(0, 0, 1), 6),  # 5
], False)
sketch11.addConstraint([
    Sketcher.Constraint("Tangent", 0, 2, 1, 1),
    Sketcher.Constraint("Tangent", 1, 2, 2, 1),
    Sketcher.Constraint("Tangent", 2, 2, 3, 1),
    Sketcher.Constraint("Tangent", 3, 2, 0, 1),
    Sketcher.Constraint("Horizontal", 1),
    Sketcher.Constraint("Horizontal", 3),
    Sketcher.Constraint("Coincident", 4, 3, 0, 3),
    Sketcher.Constraint("Coincident", 5, 3, 2, 3),
    Sketcher.Constraint("Equal", 4, 5),
    Sketcher.Constraint("Diameter", 4, Q("12 mm")),
    Sketcher.Constraint("Radius", 0, Q("10 mm")),
    Sketcher.Constraint("DistanceX", 1, 1, 1, 2, Q("157.5098 mm")),
    Sketcher.Constraint("DistanceX", 0, 3, -1, 1, Q("127.867104 mm")),
    Sketcher.Constraint("DistanceY", -1, 1, 0, 3, Q("1044.293523 mm")),
])
pad11 = body11.newObject("PartDesign::Pad", "Pad010")
pad11.Profile = sketch11
pad11.Length = 25
body12 = doc.addObject("PartDesign::Body", "Body011")

# Sketch on XY plane
sketch12 = body12.newObject("Sketcher::SketchObject", "Sketch011")
sketch12.AttachmentSupport = (doc.getObject("XY_Plane011"), [""])
sketch12.MapMode = "FlatFace"
sketch12.addGeometry([
    Part.ArcOfCircle(Part.Circle(App.Vector(130, 1161, 0), App.Vector(0, 0, 1), 10), math.radians(90), math.radians(270)),  # 0
    Part.LineSegment(App.Vector(130, 1151, 0), App.Vector(370, 1151, 0)),  # 1
    Part.ArcOfCircle(Part.Circle(App.Vector(370, 1161, 0), App.Vector(0, 0, 1), 10), math.radians(-90), math.radians(90)),  # 2
    Part.LineSegment(App.Vector(370, 1171, 0), App.Vector(130, 1171, 0)),  # 3
    Part.Circle(App.Vector(130, 1161, 0), App.Vector(0, 0, 1), 6),  # 4
    Part.Circle(App.Vector(370, 1161, 0), App.Vector(0, 0, 1), 6),  # 5
], False)
sketch12.addConstraint([
    Sketcher.Constraint("Tangent", 0, 2, 1, 1),
    Sketcher.Constraint("Tangent", 1, 2, 2, 1),
    Sketcher.Constraint("Tangent", 2, 2, 3, 1),
    Sketcher.Constraint("Tangent", 3, 2, 0, 1),
    Sketcher.Constraint("Horizontal", 1),
    Sketcher.Constraint("Horizontal", 3),
    Sketcher.Constraint("Coincident", 4, 3, 0, 3),
    Sketcher.Constraint("Coincident", 5, 3, 2, 3),
    Sketcher.Constraint("Equal", 4, 5),
    Sketcher.Constraint("Diameter", 4, Q("12 mm")),
    Sketcher.Constraint("Radius", 0, Q("10 mm")),
    Sketcher.Constraint("DistanceX", 1, 1, 1, 2, Q("240 mm")),
    Sketcher.Constraint("DistanceY", -1, 1, 0, 3, Q("1161.422849 mm")),
    Sketcher.Constraint("DistanceX", -1, 1, 0, 3, Q("130.214376 mm")),
])
pad12 = body12.newObject("PartDesign::Pad", "Pad011")
pad12.Profile = sketch12
pad12.Length = 25

doc.recompute()
